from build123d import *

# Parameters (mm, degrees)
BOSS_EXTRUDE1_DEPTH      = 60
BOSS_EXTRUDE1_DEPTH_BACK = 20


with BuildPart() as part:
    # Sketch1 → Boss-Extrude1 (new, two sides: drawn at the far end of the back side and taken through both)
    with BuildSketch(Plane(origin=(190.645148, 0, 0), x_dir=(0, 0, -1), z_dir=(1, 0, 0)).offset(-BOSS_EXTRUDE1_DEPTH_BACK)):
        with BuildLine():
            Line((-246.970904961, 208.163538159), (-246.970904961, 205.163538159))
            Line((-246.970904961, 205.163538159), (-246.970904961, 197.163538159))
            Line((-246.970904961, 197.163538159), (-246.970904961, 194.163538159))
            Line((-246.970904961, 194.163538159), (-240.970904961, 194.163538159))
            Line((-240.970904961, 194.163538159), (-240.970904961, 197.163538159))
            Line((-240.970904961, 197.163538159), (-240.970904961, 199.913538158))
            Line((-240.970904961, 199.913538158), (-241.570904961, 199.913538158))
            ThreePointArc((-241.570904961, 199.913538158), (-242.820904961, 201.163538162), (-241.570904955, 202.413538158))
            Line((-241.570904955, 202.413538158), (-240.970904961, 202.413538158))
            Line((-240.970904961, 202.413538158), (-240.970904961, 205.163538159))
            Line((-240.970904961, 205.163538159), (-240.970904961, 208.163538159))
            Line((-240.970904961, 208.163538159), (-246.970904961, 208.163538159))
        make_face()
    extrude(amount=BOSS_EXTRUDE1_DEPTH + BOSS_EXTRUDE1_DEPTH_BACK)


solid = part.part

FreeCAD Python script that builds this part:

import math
import FreeCAD as App
import Part
import Sketcher
from FreeCAD import Vector

doc = App.newDocument("Part")
body = doc.addObject("PartDesign::Body", "Body")

# Sketch on YZ plane
sketch1 = doc.addObject("Sketcher::SketchObject", "Sketch")
body.addObject(sketch1)
sketch1.AttachmentSupport = (doc.YZ_Plane, [""])
sketch1.MapMode = "FlatFace"
sketch1.AttachmentOffset = App.Placement(Vector(0, 0, 190.645148), App.Rotation())
sketch1.addGeometry([
    Part.LineSegment(Vector(208.2, 247, 0), Vector(194.2, 247, 0)),  # 0
    Part.LineSegment(Vector(194.2, 247, 0), Vector(194.2, 241, 0)),  # 1
    Part.LineSegment(Vector(194.2, 241, 0), Vector(199.9, 241, 0)),  # 2
    Part.LineSegment(Vector(199.9, 241, 0), Vector(199.9, 241.6, 0)),  # 3
    Part.ArcOfCircle(Part.Circle(Vector(201.2, 241.6, 0), Vector(0, 0, 1), 1.2), math.radians(0), math.radians(180)),  # 4
    Part.LineSegment(Vector(202.4, 241.6, 0), Vector(202.4, 241, 0)),  # 5
    Part.LineSegment(Vector(202.4, 241, 0), Vector(208.2, 241, 0)),  # 6
    Part.LineSegment(Vector(208.2, 241, 0), Vector(208.2, 247, 0)),  # 7
], False)
sketch1.addConstraint([
    Sketcher.Constraint("Coincident", 0, 2, 1, 1),
    Sketcher.Constraint("Coincident", 1, 2, 2, 1),
    Sketcher.Constraint("Coincident", 2, 2, 3, 1),
    Sketcher.Constraint("Tangent", 3, 2, 4, 2),
    Sketcher.Constraint("Tangent", 4, 1, 5, 1),
    Sketcher.Constraint("Coincident", 5, 2, 6, 1),
    Sketcher.Constraint("Coincident", 6, 2, 7, 1),
    Sketcher.Constraint("Coincident", 7, 2, 0, 1),
    Sketcher.Constraint("Horizontal", 0),
    Sketcher.Constraint("Vertical", 1),
    Sketcher.Constraint("Horizontal", 2),
    Sketcher.Constraint("Vertical", 3),
    Sketcher.Constraint("Vertical", 5),
    Sketcher.Constraint("Horizontal", 6),
    Sketcher.Constraint("Vertical", 7),
    Sketcher.Constraint("Horizontal", 2, 2, 5, 2),
    Sketcher.Constraint("Equal", 2, 6),
    Sketcher.Constraint("DistanceX", 0, 2, 0, 1, 14.0),
    Sketcher.Constraint("DistanceY", 1, 2, 1, 1, 6.0),
    Sketcher.Constraint("Radius", 4, 1.25),
    Sketcher.Constraint("DistanceY", 3, 1, 3, 2, 0.6),
    Sketcher.Constraint("DistanceX", -1, 1, 4, 3, 201.163538),
    Sketcher.Constraint("DistanceY", -1, 1, 4, 3, 241.570905),
])
pad1 = doc.addObject("PartDesign::Pad", "Pad")
body.addObject(pad1)
pad1.Profile = sketch1
pad1.Type = "TwoLengths"
pad1.Length = 60
pad1.Length2 = 20

doc.recompute()
